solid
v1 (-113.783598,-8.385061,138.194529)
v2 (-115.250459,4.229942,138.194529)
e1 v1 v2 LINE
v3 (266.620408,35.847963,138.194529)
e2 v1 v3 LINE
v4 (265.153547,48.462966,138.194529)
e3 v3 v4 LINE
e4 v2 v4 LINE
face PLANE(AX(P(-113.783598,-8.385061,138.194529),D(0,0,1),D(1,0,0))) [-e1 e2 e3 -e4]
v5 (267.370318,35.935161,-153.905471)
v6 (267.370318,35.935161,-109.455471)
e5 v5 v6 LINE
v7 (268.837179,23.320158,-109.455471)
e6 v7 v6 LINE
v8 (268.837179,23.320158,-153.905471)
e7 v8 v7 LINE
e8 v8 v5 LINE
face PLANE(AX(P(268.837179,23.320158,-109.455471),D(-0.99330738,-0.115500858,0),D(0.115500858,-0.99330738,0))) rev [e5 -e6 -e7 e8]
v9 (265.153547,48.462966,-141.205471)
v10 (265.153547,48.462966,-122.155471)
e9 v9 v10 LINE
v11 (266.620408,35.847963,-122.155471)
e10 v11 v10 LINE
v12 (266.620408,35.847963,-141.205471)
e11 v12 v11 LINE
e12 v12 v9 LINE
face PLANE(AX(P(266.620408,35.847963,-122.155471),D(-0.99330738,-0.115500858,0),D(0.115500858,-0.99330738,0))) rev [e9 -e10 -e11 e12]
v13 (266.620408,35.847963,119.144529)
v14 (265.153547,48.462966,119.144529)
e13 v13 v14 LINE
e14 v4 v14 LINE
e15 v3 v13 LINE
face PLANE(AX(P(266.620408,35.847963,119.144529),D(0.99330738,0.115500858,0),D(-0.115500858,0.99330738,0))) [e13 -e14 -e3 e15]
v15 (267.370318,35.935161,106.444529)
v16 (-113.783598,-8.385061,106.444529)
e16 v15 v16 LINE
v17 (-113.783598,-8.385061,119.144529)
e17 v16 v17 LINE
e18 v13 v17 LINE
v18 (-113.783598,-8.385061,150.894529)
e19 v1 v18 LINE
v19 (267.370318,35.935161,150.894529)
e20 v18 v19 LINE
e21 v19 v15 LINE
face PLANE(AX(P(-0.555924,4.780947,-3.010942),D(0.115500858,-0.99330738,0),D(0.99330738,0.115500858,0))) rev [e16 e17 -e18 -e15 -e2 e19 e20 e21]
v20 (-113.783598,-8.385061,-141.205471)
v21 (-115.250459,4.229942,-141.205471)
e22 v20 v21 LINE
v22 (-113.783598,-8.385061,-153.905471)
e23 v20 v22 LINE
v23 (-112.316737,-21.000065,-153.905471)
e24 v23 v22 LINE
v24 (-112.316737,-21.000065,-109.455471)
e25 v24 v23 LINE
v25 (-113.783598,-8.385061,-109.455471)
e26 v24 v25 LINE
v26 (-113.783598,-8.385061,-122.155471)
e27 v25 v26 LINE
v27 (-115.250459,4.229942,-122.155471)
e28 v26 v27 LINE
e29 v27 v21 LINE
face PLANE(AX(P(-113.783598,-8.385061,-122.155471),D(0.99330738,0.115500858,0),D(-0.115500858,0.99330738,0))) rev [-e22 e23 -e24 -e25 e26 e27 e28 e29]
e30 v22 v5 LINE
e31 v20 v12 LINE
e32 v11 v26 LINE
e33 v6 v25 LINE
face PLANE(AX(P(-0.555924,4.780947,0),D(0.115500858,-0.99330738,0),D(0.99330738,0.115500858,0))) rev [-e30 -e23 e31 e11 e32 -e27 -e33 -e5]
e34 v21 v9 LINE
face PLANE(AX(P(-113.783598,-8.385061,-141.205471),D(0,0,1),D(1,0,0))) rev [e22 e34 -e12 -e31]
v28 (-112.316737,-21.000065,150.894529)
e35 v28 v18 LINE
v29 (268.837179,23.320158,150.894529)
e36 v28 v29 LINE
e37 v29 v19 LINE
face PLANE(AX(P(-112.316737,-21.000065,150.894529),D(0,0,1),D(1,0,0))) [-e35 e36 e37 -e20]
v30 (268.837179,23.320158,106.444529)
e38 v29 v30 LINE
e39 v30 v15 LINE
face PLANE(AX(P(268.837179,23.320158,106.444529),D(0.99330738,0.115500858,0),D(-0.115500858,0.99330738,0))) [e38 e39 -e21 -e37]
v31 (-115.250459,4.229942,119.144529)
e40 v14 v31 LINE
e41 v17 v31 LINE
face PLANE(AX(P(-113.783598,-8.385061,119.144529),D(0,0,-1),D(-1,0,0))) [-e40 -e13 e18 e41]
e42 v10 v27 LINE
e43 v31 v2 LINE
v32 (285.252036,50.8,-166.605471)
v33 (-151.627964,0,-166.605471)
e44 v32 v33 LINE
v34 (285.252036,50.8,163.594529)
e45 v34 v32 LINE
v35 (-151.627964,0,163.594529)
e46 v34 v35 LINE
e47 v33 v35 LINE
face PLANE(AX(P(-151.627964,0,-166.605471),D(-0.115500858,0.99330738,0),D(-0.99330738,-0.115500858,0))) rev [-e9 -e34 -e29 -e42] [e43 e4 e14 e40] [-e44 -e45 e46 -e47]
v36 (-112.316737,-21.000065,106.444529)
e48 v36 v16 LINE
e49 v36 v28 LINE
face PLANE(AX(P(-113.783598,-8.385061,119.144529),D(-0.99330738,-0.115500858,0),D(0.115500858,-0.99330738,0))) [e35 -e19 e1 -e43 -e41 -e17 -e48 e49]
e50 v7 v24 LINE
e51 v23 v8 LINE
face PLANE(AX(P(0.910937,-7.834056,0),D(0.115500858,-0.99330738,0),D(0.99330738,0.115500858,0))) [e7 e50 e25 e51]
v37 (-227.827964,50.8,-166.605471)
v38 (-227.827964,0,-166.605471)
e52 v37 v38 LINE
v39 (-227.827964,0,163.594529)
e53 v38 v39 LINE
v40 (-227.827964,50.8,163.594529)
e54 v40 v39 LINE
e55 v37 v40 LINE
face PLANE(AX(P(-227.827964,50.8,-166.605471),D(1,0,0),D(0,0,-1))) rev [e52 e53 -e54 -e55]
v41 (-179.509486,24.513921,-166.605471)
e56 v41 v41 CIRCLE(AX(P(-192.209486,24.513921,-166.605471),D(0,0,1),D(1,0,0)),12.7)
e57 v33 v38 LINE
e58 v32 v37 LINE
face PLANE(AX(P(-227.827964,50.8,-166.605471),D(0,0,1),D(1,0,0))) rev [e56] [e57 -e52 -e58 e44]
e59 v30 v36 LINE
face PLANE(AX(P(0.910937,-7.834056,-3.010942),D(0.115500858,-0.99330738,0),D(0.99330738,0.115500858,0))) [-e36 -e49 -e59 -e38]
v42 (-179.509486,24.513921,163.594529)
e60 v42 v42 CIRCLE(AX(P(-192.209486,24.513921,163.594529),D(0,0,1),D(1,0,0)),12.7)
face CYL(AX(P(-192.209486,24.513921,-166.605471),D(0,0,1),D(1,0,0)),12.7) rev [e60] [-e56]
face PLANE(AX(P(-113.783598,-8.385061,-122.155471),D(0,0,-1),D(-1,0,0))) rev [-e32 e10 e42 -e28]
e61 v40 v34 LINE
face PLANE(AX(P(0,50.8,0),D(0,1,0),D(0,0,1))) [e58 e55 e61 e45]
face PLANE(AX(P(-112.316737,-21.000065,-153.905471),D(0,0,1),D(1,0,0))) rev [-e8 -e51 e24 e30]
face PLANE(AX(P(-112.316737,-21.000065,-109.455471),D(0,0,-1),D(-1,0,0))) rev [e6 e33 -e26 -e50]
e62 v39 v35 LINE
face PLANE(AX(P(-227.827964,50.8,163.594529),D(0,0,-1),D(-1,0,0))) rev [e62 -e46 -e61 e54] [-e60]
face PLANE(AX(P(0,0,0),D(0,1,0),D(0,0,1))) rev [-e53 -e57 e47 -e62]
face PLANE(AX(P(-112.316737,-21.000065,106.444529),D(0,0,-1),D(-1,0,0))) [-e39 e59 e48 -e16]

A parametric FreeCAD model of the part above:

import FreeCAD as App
import Part
import Sketcher
from FreeCAD import Vector
Q = App.Units.Quantity


def add_polygon(sketch, points):
    """Adds a closed chain of lines whose ends are joined by coincident constraints."""
    first, n = sketch.GeometryCount, len(points)
    for a, b in zip(points, points[1:] + points[:1]):
        sketch.addGeometry(Part.LineSegment(App.Vector(*a, 0), App.Vector(*b, 0)), False)
    for i in range(n):
        sketch.addConstraint(Sketcher.Constraint("Coincident", first + i, 2, first + (i + 1) % n, 1))

doc = App.newDocument("Part")
body = doc.addObject("PartDesign::Body", "Body")

sketch1 = body.newObject("Sketcher::SketchObject", "Sketch")
sketch1.AttachmentSupport = (doc.getObject("XZ_Plane"), [""])
sketch1.MapMode = "FlatFace"
add_polygon(sketch1, [(-227.827964, -166.605471), (-227.827964, 163.594529), (285.252036, 163.594529), (285.252036, -166.605471)])
sketch1.addConstraint([
    Sketcher.Constraint("Vertical", 0),
    Sketcher.Constraint("Horizontal", 1),
    Sketcher.Constraint("Vertical", 2),
    Sketcher.Constraint("Horizontal", 3),
    Sketcher.Constraint("DistanceY", 0, 1, 0, 2, Q("13 in")),
    Sketcher.Constraint("DistanceX", 1, 1, 1, 2, Q("20.2 in")),
    Sketcher.Constraint("DistanceY", -1, 1, 0, 2, Q("163.594529 mm")),
    Sketcher.Constraint("DistanceX", 0, 2, -1, 1, Q("227.827964 mm")),
])
pad1 = body.newObject("PartDesign::Pad", "Pad")
pad1.Profile = sketch1
pad1.Length = Q("2 in")
pad1.Reversed = True

sketch2 = body.newObject("Sketcher::SketchObject", "Sketch001")
sketch2.AttachmentSupport = (doc.getObject("XY_Plane"), [""])
sketch2.MapMode = "FlatFace"
sketch2.AttachmentOffset = App.Placement(Vector(0, 0, 163.594529), App.Rotation())
sketch2.addGeometry(Part.Circle(Vector(-192.209486, 24.513921, 0), Vector(0, 0, 1), 12.7), False)
add_polygon(sketch2, [(285.252036, 50.8), (-151.627964, 0), (285.252036, 0)])
sketch2.addConstraint([
    Sketcher.Constraint("Horizontal", 2),
    Sketcher.Constraint("Vertical", 3),
    Sketcher.Constraint("PointOnObject", 1, 2, -1),
    Sketcher.Constraint("Diameter", 0, Q("1 in")),
    Sketcher.Constraint("DistanceY", 3, 1, 3, 2, Q("2 in")),
    Sketcher.Constraint("DistanceX", 2, 1, 2, 2, Q("17.2 in")),
    Sketcher.Constraint("DistanceY", -1, 1, 0, 3, Q("24.513921 mm")),
    Sketcher.Constraint("DistanceX", 0, 3, -1, 1, Q("192.209486 mm")),
    Sketcher.Constraint("DistanceX", 1, 2, -1, 1, Q("151.627964 mm")),
])
pocket1 = body.newObject("PartDesign::Pocket", "Pocket")
pocket1.Profile = sketch2
pocket1.Type = "ThroughAll"

sketch3 = body.newObject("Sketcher::SketchObject", "Sketch002")
sketch3.Placement = App.Placement(Vector(-2.022785, 17.395951, 0), App.Rotation(Vector(0.99330738, 0.115500858, 0), Vector(0, 0, 0.999999999), Vector(0.115500858, -0.99330738, 0), "ZXY"))
add_polygon(sketch3, [(-113.99057, -122.155471), (-113.99057, -141.205471), (268.976489, -141.205471), (268.976489, -122.155471)])
sketch3.addConstraint([
    Sketcher.Constraint("Vertical", 0),
    Sketcher.Constraint("Horizontal", 1),
    Sketcher.Constraint("Vertical", 2),
    Sketcher.Constraint("Horizontal", 3),
    Sketcher.Constraint("DistanceY", 0, 2, 0, 1, Q("0.75 in")),
    Sketcher.Constraint("DistanceX", 1, 1, 1, 2, Q("382.967059 mm")),
    Sketcher.Constraint("DistanceX", 0, 2, -1, 1, Q("113.99057 mm")),
    Sketcher.Constraint("DistanceY", 0, 2, -1, 1, Q("141.205471 mm")),
])
pad2 = body.newObject("PartDesign::Pad", "Pad001")
pad2.Profile = sketch3
pad2.Length = Q("0.5 in")

sketch4 = body.newObject("Sketcher::SketchObject", "Sketch003")
sketch4.Placement = App.Placement(Vector(-0.555924, 4.780947, 0), App.Rotation(Vector(0.99330738, 0.115500858, 0), Vector(0, 0, 0.999999999), Vector(0.115500858, -0.99330738, 0), "ZXY"))
add_polygon(sketch4, [(-113.99057, -109.455471), (-113.99057, -153.905471), (269.731452, -153.905471), (269.731452, -109.455471)])
sketch4.addConstraint([
    Sketcher.Constraint("Vertical", 0),
    Sketcher.Constraint("Horizontal", 1),
    Sketcher.Constraint("Vertical", 2),
    Sketcher.Constraint("Horizontal", 3),
    Sketcher.Constraint("DistanceY", 0, 2, 0, 1, Q("1.75 in")),
    Sketcher.Constraint("DistanceX", 1, 1, 1, 2, Q("383.722022 mm")),
    Sketcher.Constraint("DistanceX", 0, 2, -1, 1, Q("113.99057 mm")),
    Sketcher.Constraint("DistanceY", 0, 2, -1, 1, Q("153.905471 mm")),
])
pad3 = body.newObject("PartDesign::Pad", "Pad002")
pad3.Profile = sketch4
pad3.Length = Q("0.5 in")
doc.recompute()

datumplane = body.newObject("PartDesign::Plane", "DatumPlane")
datumplane.AttachmentSupport = (doc.getObject("XY_Plane"), [""])
datumplane.MapMode = "FlatFace"
datumplane.AttachmentOffset = App.Placement(Vector(0, 0, -1.505471), App.Rotation())
mirrored = body.newObject("PartDesign::Mirrored", "Mirrored")
mirrored.Originals = [pad2, pad3]
mirrored.MirrorPlane = (datumplane, [""])
body.Tip = mirrored

doc.recompute()
